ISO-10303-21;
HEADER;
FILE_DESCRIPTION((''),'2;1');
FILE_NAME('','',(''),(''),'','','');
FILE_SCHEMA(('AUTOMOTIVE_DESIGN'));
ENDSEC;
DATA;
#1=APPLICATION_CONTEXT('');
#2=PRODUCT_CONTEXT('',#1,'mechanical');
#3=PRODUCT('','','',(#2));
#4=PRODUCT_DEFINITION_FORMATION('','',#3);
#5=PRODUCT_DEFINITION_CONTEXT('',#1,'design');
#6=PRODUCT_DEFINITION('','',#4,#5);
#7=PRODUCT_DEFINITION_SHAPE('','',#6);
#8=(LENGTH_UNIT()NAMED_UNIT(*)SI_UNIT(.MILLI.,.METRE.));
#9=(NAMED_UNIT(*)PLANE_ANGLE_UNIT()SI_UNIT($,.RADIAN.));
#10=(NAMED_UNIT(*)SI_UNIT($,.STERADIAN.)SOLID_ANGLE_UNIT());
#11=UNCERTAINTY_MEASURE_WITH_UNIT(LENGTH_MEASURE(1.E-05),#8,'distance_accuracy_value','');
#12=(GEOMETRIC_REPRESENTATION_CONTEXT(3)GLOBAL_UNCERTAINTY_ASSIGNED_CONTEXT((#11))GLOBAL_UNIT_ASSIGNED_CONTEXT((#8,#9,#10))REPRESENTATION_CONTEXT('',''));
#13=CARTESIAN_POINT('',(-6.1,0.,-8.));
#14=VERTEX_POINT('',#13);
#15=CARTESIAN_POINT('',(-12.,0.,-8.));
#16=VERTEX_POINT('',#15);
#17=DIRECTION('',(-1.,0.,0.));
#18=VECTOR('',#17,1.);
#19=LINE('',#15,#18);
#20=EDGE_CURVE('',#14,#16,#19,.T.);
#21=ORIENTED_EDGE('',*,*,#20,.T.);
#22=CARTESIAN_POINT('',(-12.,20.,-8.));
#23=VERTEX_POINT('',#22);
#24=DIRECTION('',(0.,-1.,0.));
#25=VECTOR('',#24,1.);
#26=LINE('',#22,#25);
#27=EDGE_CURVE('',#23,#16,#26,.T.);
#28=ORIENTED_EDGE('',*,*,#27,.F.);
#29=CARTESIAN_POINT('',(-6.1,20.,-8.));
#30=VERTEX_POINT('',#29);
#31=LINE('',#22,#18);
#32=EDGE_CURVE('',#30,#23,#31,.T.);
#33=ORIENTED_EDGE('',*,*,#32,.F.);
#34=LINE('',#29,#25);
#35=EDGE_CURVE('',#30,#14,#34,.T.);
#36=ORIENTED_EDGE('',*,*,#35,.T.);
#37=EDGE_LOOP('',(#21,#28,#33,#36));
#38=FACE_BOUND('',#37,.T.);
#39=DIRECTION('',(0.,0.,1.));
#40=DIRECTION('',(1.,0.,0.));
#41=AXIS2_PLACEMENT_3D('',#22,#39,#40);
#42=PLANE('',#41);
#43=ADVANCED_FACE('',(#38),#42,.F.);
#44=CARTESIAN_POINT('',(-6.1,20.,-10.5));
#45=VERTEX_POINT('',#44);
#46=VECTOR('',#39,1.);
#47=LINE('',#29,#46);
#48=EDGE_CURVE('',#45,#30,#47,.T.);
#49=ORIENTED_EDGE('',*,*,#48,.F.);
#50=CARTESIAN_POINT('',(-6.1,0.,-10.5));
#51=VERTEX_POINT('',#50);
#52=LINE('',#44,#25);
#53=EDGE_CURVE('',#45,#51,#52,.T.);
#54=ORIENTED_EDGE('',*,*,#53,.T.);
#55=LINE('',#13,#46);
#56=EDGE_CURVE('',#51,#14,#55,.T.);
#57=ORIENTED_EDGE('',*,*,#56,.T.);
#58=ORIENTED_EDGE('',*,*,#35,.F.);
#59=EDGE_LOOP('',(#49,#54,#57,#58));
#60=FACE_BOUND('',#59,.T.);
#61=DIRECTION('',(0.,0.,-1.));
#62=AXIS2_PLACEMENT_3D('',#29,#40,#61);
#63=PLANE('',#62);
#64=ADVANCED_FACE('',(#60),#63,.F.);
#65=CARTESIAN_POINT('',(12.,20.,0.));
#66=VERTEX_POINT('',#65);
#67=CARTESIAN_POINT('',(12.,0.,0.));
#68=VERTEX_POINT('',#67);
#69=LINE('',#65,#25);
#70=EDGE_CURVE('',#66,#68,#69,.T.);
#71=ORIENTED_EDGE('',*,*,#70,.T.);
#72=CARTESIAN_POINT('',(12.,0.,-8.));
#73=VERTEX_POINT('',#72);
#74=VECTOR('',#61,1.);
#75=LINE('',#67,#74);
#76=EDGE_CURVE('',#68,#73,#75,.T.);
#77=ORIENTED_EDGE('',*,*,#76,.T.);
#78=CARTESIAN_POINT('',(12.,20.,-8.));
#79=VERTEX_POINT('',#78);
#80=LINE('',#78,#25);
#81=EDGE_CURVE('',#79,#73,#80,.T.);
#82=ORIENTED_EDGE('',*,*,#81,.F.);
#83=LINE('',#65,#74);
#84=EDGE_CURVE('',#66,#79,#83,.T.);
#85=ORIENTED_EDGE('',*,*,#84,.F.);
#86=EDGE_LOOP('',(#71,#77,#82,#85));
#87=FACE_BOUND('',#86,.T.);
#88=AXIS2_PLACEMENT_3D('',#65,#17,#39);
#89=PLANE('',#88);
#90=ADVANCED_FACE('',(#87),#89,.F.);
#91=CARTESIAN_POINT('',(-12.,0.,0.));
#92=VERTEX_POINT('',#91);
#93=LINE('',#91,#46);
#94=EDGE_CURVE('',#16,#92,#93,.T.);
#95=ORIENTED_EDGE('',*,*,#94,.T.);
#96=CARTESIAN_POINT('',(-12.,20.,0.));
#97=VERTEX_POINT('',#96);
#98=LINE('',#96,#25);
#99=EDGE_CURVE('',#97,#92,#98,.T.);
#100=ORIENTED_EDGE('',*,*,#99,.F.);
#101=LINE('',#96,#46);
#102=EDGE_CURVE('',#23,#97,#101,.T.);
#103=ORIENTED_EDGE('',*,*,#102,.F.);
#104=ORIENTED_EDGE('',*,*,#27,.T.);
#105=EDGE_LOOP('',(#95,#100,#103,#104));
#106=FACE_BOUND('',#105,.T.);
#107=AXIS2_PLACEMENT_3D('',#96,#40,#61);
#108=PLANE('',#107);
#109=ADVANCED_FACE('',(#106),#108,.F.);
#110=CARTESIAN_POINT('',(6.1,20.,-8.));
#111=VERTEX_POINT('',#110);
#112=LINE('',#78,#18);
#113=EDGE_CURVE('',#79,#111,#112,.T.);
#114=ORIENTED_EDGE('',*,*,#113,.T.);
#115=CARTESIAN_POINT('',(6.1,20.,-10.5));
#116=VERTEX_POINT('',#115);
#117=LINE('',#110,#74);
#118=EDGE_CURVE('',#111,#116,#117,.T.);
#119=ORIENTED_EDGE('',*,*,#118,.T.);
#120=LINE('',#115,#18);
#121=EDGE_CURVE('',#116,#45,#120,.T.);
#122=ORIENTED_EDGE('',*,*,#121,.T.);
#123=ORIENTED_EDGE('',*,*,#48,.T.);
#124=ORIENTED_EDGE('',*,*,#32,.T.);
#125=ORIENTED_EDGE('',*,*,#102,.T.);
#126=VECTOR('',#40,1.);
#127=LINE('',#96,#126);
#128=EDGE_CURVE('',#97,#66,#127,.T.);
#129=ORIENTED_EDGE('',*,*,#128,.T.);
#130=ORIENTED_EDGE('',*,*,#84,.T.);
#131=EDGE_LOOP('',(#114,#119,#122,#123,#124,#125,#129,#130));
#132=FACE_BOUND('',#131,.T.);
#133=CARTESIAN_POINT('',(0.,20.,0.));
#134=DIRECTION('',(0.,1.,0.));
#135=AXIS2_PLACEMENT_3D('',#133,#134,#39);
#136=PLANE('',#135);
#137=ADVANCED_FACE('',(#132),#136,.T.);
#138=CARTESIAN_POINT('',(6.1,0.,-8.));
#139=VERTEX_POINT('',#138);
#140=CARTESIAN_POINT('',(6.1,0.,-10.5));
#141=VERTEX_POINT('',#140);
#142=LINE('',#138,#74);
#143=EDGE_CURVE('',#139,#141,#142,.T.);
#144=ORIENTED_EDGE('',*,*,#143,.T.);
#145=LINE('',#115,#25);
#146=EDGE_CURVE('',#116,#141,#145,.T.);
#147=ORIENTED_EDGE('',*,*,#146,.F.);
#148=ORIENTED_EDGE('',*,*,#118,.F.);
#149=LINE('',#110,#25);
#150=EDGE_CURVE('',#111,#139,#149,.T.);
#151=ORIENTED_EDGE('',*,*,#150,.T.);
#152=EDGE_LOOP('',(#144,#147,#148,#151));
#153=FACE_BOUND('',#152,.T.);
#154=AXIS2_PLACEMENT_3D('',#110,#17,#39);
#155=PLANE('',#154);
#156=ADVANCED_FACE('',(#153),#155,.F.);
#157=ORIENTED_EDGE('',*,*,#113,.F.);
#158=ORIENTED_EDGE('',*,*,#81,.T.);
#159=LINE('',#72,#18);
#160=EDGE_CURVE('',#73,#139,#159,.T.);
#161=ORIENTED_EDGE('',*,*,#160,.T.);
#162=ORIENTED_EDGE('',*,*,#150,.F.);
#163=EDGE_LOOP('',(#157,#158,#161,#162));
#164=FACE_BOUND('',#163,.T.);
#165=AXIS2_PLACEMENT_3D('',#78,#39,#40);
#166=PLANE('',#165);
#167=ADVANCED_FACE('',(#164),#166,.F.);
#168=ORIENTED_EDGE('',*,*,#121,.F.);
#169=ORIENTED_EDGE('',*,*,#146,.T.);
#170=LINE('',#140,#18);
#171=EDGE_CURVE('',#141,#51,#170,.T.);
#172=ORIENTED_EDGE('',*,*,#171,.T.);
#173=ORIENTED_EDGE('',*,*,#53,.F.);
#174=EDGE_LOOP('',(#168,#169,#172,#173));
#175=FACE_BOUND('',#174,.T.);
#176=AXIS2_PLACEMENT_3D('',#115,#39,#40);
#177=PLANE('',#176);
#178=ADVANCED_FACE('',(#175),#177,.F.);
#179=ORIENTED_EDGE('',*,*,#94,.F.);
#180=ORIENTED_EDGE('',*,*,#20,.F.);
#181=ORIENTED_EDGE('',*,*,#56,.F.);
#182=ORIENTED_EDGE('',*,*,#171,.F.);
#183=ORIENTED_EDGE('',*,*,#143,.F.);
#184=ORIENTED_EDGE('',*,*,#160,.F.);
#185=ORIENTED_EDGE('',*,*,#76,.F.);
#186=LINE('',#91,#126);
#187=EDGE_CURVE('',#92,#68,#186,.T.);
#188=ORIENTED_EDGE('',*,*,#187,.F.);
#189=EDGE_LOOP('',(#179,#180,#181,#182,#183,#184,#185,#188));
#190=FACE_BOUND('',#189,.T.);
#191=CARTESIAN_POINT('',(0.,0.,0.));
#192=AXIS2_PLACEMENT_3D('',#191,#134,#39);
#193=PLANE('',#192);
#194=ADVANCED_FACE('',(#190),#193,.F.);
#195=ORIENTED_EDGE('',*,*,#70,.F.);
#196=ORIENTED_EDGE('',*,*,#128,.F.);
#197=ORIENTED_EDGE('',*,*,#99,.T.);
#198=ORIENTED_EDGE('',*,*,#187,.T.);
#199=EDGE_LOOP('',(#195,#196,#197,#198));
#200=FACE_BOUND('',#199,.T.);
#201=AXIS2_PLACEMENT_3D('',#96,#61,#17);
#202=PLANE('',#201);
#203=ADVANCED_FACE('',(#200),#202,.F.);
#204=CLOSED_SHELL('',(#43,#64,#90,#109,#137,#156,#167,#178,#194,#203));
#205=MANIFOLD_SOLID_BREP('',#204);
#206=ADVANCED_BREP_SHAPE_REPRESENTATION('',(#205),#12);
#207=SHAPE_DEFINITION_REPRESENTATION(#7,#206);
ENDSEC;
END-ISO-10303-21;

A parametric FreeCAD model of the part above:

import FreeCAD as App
import Part
import Sketcher

V = App.Vector

doc = App.newDocument("Part")
params = doc.addObject("Spreadsheet::Sheet", "Params")
for row, (alias, value) in enumerate([
    ("sketch1_width", "24 mm"),
    ("sketch1_height", "8 mm"),
    ("sketch1_width2", "5.9 mm"),
    ("sketch1_height2", "2.5 mm"),
    ("pad1_length", "20 mm"),
], start=1):
    params.set(f"A{row}", alias)
    params.set(f"B{row}", "=" + value)
    params.setAlias(f"B{row}", alias)

body = doc.addObject("PartDesign::Body", "Body")

sketch1 = body.newObject("Sketcher::SketchObject", "Sketch")
sketch1.AttachmentSupport = (doc.getObject("XZ_Plane"), [""])
sketch1.MapMode = "FlatFace"
sketch1.addGeometry(Part.LineSegment(V(-12, 0, 0), V(12, 0, 0)), False)
sketch1.addGeometry(Part.LineSegment(V(12, 0, 0), V(12, -8, 0)), False)
sketch1.addGeometry(Part.LineSegment(V(12, -8, 0), V(6.1, -8, 0)), False)
sketch1.addGeometry(Part.LineSegment(V(6.1, -8, 0), V(6.1, -10.5, 0)), False)
sketch1.addGeometry(Part.LineSegment(V(6.1, -10.5, 0), V(-6.1, -10.5, 0)), False)
sketch1.addGeometry(Part.LineSegment(V(-6.1, -10.5, 0), V(-6.1, -8, 0)), False)
sketch1.addGeometry(Part.LineSegment(V(-6.1, -8, 0), V(-12, -8, 0)), False)
sketch1.addGeometry(Part.LineSegment(V(-12, -8, 0), V(-12, 0, 0)), False)
sketch1.addConstraint(Sketcher.Constraint("Coincident", 0, 2, 1, 1))
sketch1.addConstraint(Sketcher.Constraint("Coincident", 1, 2, 2, 1))
sketch1.addConstraint(Sketcher.Constraint("Coincident", 2, 2, 3, 1))
sketch1.addConstraint(Sketcher.Constraint("Coincident", 3, 2, 4, 1))
sketch1.addConstraint(Sketcher.Constraint("Coincident", 4, 2, 5, 1))
sketch1.addConstraint(Sketcher.Constraint("Coincident", 5, 2, 6, 1))
sketch1.addConstraint(Sketcher.Constraint("Coincident", 6, 2, 7, 1))
sketch1.addConstraint(Sketcher.Constraint("Coincident", 7, 2, 0, 1))
sketch1.addConstraint(Sketcher.Constraint("Horizontal", 0))
sketch1.addConstraint(Sketcher.Constraint("Vertical", 1))
sketch1.addConstraint(Sketcher.Constraint("Horizontal", 2))
sketch1.addConstraint(Sketcher.Constraint("Vertical", 3))
sketch1.addConstraint(Sketcher.Constraint("Horizontal", 4))
sketch1.addConstraint(Sketcher.Constraint("Vertical", 5))
sketch1.addConstraint(Sketcher.Constraint("Horizontal", 6))
sketch1.addConstraint(Sketcher.Constraint("Vertical", 7))
sketch1.addConstraint(Sketcher.Constraint("Symmetric", 0, 2, 7, 2, -1, 1))
sketch1.addConstraint(Sketcher.Constraint("Symmetric", 2, 2, 5, 2, -2))
sketch1.addConstraint(Sketcher.Constraint("DistanceX", 0, 1, 0, 2, 24.0))
sketch1.addConstraint(Sketcher.Constraint("DistanceY", 1, 2, 1, 1, 8.0))
sketch1.addConstraint(Sketcher.Constraint("DistanceX", 2, 2, 2, 1, 5.9))
sketch1.addConstraint(Sketcher.Constraint("DistanceY", 3, 2, 3, 1, 2.5))
sketch1.setExpression("Constraints[18]", "Params.sketch1_width")
sketch1.setExpression("Constraints[19]", "Params.sketch1_height")
sketch1.setExpression("Constraints[20]", "Params.sketch1_width2")
sketch1.setExpression("Constraints[21]", "Params.sketch1_height2")
pad1 = body.newObject("PartDesign::Pad", "Pad")
pad1.Profile = sketch1
pad1.setExpression("Length", "Params.pad1_length")
pad1.Reversed = True

doc.recompute()
